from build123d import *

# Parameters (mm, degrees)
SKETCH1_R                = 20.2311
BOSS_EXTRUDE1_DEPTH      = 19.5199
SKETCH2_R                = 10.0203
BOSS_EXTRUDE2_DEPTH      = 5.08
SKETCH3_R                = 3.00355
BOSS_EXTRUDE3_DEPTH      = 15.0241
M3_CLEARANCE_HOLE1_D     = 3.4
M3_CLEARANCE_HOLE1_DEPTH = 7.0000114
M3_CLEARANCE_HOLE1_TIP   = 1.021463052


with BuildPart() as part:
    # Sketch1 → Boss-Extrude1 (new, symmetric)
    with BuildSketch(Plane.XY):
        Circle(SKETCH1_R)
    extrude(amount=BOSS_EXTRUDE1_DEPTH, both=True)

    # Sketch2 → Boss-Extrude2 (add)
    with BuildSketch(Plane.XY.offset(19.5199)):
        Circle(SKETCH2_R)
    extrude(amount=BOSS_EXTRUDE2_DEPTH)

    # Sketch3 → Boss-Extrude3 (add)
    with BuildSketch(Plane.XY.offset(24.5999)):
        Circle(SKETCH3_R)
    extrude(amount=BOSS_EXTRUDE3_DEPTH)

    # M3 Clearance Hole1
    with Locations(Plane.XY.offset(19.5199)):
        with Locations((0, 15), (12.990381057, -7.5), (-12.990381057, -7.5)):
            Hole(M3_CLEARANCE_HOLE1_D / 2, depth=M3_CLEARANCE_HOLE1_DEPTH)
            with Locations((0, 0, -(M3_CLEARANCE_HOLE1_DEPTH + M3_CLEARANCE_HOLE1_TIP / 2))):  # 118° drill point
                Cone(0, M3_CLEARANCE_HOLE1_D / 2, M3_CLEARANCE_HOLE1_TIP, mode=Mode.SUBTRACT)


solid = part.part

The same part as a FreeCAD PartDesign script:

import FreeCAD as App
import Part
import Sketcher
Q = App.Units.Quantity

doc = App.newDocument("Part")
body = doc.addObject("PartDesign::Body", "Body")

# Sketch on XY plane
sketch1 = body.newObject("Sketcher::SketchObject", "Sketch")
sketch1.AttachmentSupport = (doc.getObject("XY_Plane"), [""])
sketch1.MapMode = "FlatFace"
sketch1.addGeometry(Part.Circle(App.Vector(0, 0, 0), App.Vector(0, 0, 1), 20.2311), False)
sketch1.addConstraint([
    Sketcher.Constraint("Coincident", 0, 3, -1, 1),
    Sketcher.Constraint("Diameter", 0, Q("1.593 in")),
])
pad1 = body.newObject("PartDesign::Pad", "Pad")
pad1.Profile = sketch1
pad1.Length = Q("1.537 in")
pad1.Midplane = True

# Sketch on XY plane
sketch2 = body.newObject("Sketcher::SketchObject", "Sketch001")
sketch2.AttachmentSupport = (doc.getObject("XY_Plane"), [""])
sketch2.MapMode = "FlatFace"
sketch2.AttachmentOffset = App.Placement(App.Vector(0, 0, 0.7685 * 25.4), App.Rotation())
sketch2.addGeometry(Part.Circle(App.Vector(0, 0, 0), App.Vector(0, 0, 1), 10.0203), False)
sketch2.addConstraint([
    Sketcher.Constraint("Coincident", 0, 3, -1, 1),
    Sketcher.Constraint("Diameter", 0, Q("0.789 in")),
])
pad2 = body.newObject("PartDesign::Pad", "Pad001")
pad2.Profile = sketch2
pad2.Length = Q("0.2 in")

# Sketch on XY plane
sketch3 = body.newObject("Sketcher::SketchObject", "Sketch002")
sketch3.AttachmentSupport = (doc.getObject("XY_Plane"), [""])
sketch3.MapMode = "FlatFace"
sketch3.AttachmentOffset = App.Placement(App.Vector(0, 0, 0.9685 * 25.4), App.Rotation())
sketch3.addGeometry(Part.Circle(App.Vector(0, 0, 0), App.Vector(0, 0, 1), 3.00355), False)
sketch3.addConstraint([
    Sketcher.Constraint("Coincident", 0, 3, -1, 1),
    Sketcher.Constraint("Diameter", 0, Q("0.2365 in")),
])
pad3 = body.newObject("PartDesign::Pad", "Pad002")
pad3.Profile = sketch3
pad3.Length = Q("0.5915 in")

# Sketch on XY plane
sketch4 = body.newObject("Sketcher::SketchObject", "Sketch003")
sketch4.AttachmentSupport = (doc.getObject("XY_Plane"), [""])
sketch4.MapMode = "FlatFace"
sketch4.AttachmentOffset = App.Placement(App.Vector(0, 0, 0.7685 * 25.4), App.Rotation())
sketch4.addGeometry([
    Part.Circle(App.Vector(0, 15, 0), App.Vector(0, 0, 1), 1.7),
    Part.Circle(App.Vector(12.990381, -7.5, 0), App.Vector(0, 0, 1), 1.7),
    Part.Circle(App.Vector(-12.990381, -7.5, 0), App.Vector(0, 0, 1), 1.7),
], False)
sketch4.addConstraint([
    Sketcher.Constraint("Equal", 0, 1),
    Sketcher.Constraint("Equal", 1, 2),
    Sketcher.Constraint("Symmetric", 1, 3, 2, 3, -2),
    Sketcher.Constraint("PointOnObject", 0, 3, -2),
    Sketcher.Constraint("Diameter", 0, Q("3.4 mm")),
    Sketcher.Constraint("DistanceY", -1, 1, 0, 3, Q("15 mm")),
    Sketcher.Constraint("DistanceY", 1, 3, -1, 1, Q("7.5 mm")),
    Sketcher.Constraint("DistanceX", -1, 1, 1, 3, Q("12.990381 mm")),
])
doc.recompute()
hole = body.newObject("PartDesign::Hole", "Hole")
hole.Profile = sketch4
hole.ThreadType = "None"
hole.Diameter = 3.4
hole.DepthType = "Dimension"
hole.Depth = 7.000011
hole.DrillPoint = "Angled"
hole.DrillPointAngle = 118

doc.recompute()
